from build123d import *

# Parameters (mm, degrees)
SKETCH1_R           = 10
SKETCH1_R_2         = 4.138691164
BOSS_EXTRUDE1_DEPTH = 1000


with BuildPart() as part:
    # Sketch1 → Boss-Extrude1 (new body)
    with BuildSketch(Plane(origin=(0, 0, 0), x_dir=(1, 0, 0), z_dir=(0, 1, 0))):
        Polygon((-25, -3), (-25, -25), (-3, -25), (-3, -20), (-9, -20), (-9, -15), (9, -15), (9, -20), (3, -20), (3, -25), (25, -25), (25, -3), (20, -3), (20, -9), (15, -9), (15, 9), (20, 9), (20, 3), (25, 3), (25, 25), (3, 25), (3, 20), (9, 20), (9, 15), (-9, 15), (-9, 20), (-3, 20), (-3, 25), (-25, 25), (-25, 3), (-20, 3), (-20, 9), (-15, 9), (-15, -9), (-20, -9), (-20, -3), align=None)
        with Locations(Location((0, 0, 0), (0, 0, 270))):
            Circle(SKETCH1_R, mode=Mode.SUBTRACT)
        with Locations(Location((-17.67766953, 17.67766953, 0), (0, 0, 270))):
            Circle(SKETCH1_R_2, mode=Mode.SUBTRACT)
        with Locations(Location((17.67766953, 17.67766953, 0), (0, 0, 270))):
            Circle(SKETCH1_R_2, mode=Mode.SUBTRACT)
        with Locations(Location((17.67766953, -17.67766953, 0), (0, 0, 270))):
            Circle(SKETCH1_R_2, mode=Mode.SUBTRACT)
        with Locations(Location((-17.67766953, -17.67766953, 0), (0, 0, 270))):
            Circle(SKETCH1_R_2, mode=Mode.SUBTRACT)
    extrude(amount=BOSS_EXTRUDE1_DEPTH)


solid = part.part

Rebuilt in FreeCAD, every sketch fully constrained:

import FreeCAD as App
import Part
import Sketcher
from FreeCAD import Vector


def add_polygon(sketch, points):
    """Adds a closed chain of lines whose ends are joined by coincident constraints."""
    first, n = sketch.GeometryCount, len(points)
    for a, b in zip(points, points[1:] + points[:1]):
        sketch.addGeometry(Part.LineSegment(App.Vector(*a, 0), App.Vector(*b, 0)), False)
    for i in range(n):
        sketch.addConstraint(Sketcher.Constraint("Coincident", first + i, 2, first + (i + 1) % n, 1))

doc = App.newDocument("Part")
body = doc.addObject("PartDesign::Body", "Body")

sketch1 = doc.addObject("Sketcher::SketchObject", "Sketch")
body.addObject(sketch1)
sketch1.AttachmentSupport = (doc.XZ_Plane, [""])
sketch1.MapMode = "FlatFace"
add_polygon(sketch1, [(-25, 3), (-25, 25), (-3, 25), (-3, 20), (-9, 20), (-9, 15), (9, 15), (9, 20), (3, 20), (3, 25), (25, 25), (25, 3), (20, 3), (20, 9), (15, 9), (15, -9), (20, -9), (20, -3), (25, -3), (25, -25), (3, -25), (3, -20), (9, -20), (9, -15), (-9, -15), (-9, -20), (-3, -20), (-3, -25), (-25, -25), (-25, -3), (-20, -3), (-20, -9), (-15, -9), (-15, 9), (-20, 9), (-20, 3)])
sketch1.addGeometry(Part.Circle(Vector(-17.67767, 17.67767, 0), Vector(0, 0, 1), 4.138691), False)
sketch1.addGeometry(Part.Circle(Vector(17.67767, 17.67767, 0), Vector(0, 0, 1), 4.138691), False)
sketch1.addGeometry(Part.Circle(Vector(-17.67767, -17.67767, 0), Vector(0, 0, 1), 4.138691), False)
sketch1.addGeometry(Part.Circle(Vector(0, 0, 0), Vector(0, 0, 1), 10), False)
sketch1.addGeometry(Part.Circle(Vector(17.67767, -17.67767, 0), Vector(0, 0, 1), 4.138691), False)
sketch1.addConstraint([
    Sketcher.Constraint("Vertical", 0),
    Sketcher.Constraint("Horizontal", 1),
    Sketcher.Constraint("Vertical", 2),
    Sketcher.Constraint("Horizontal", 3),
    Sketcher.Constraint("Vertical", 4),
    Sketcher.Constraint("Horizontal", 5),
    Sketcher.Constraint("Vertical", 6),
    Sketcher.Constraint("Horizontal", 7),
    Sketcher.Constraint("Vertical", 8),
    Sketcher.Constraint("Horizontal", 9),
    Sketcher.Constraint("Vertical", 10),
    Sketcher.Constraint("Horizontal", 11),
    Sketcher.Constraint("Vertical", 12),
    Sketcher.Constraint("Horizontal", 13),
    Sketcher.Constraint("Vertical", 14),
    Sketcher.Constraint("Horizontal", 15),
    Sketcher.Constraint("Vertical", 16),
    Sketcher.Constraint("Horizontal", 17),
    Sketcher.Constraint("Vertical", 18),
    Sketcher.Constraint("Horizontal", 19),
    Sketcher.Constraint("Vertical", 20),
    Sketcher.Constraint("Horizontal", 21),
    Sketcher.Constraint("Vertical", 22),
    Sketcher.Constraint("Horizontal", 23),
    Sketcher.Constraint("Vertical", 24),
    Sketcher.Constraint("Horizontal", 25),
    Sketcher.Constraint("Vertical", 26),
    Sketcher.Constraint("Horizontal", 27),
    Sketcher.Constraint("Vertical", 28),
    Sketcher.Constraint("Horizontal", 29),
    Sketcher.Constraint("Vertical", 30),
    Sketcher.Constraint("Horizontal", 31),
    Sketcher.Constraint("Vertical", 32),
    Sketcher.Constraint("Horizontal", 33),
    Sketcher.Constraint("Vertical", 34),
    Sketcher.Constraint("Horizontal", 35),
    Sketcher.Constraint("Coincident", 39, 3, -1, 1),
    Sketcher.Constraint("Equal", 36, 37),
    Sketcher.Constraint("Equal", 37, 38),
    Sketcher.Constraint("Equal", 38, 40),
    Sketcher.Constraint("Symmetric", 37, 3, 38, 3, -1, 1),
    Sketcher.Constraint("Symmetric", 36, 3, 40, 3, -1, 1),
    Sketcher.Constraint("Symmetric", 0, 2, 18, 2, -1, 1),
    Sketcher.Constraint("Symmetric", 2, 2, 20, 2, -1, 1),
    Sketcher.Constraint("Symmetric", 4, 2, 22, 2, -1, 1),
    Sketcher.Constraint("Symmetric", 6, 2, 24, 2, -1, 1),
    Sketcher.Constraint("Symmetric", 8, 2, 26, 2, -1, 1),
    Sketcher.Constraint("Symmetric", 10, 2, 28, 2, -1, 1),
    Sketcher.Constraint("Symmetric", 12, 2, 30, 2, -1, 1),
    Sketcher.Constraint("Symmetric", 14, 2, 32, 2, -1, 1),
    Sketcher.Constraint("Symmetric", 16, 2, 34, 2, -1, 1),
    Sketcher.Constraint("Symmetric", 36, 3, 37, 3, -2),
    Sketcher.Constraint("Symmetric", 3, 2, 6, 2, -2),
    Sketcher.Constraint("Symmetric", 1, 2, 8, 2, -2),
    Sketcher.Constraint("Symmetric", 17, 2, 28, 2, -2),
    Sketcher.Constraint("Symmetric", 15, 2, 30, 2, -2),
    Sketcher.Constraint("Equal", 11, 13),
    Sketcher.Constraint("Equal", 27, 0),
    Sketcher.Constraint("Equal", 35, 2),
    Sketcher.Constraint("Equal", 2, 4),
    Sketcher.Constraint("Equal", 25, 12),
    Sketcher.Constraint("Equal", 23, 14),
    Sketcher.Constraint("Diameter", 39, 20.0),
    Sketcher.Constraint("DistanceX", 1, 1, 1, 2, 22.0),
    Sketcher.Constraint("DistanceX", 3, 2, 3, 1, 6.0),
    Sketcher.Constraint("DistanceX", 5, 1, 5, 2, 18.0),
    Sketcher.Constraint("DistanceX", 11, 2, 11, 1, 5.0),
    Sketcher.Constraint("Diameter", 36, 8.277382),
    Sketcher.Constraint("DistanceX", 36, 3, -1, 1, 17.67767),
    Sketcher.Constraint("DistanceY", -1, 1, 36, 3, 17.67767),
])
pad1 = doc.addObject("PartDesign::Pad", "Pad")
body.addObject(pad1)
pad1.Profile = sketch1
pad1.Length = 1000
pad1.Reversed = True

doc.recompute()
